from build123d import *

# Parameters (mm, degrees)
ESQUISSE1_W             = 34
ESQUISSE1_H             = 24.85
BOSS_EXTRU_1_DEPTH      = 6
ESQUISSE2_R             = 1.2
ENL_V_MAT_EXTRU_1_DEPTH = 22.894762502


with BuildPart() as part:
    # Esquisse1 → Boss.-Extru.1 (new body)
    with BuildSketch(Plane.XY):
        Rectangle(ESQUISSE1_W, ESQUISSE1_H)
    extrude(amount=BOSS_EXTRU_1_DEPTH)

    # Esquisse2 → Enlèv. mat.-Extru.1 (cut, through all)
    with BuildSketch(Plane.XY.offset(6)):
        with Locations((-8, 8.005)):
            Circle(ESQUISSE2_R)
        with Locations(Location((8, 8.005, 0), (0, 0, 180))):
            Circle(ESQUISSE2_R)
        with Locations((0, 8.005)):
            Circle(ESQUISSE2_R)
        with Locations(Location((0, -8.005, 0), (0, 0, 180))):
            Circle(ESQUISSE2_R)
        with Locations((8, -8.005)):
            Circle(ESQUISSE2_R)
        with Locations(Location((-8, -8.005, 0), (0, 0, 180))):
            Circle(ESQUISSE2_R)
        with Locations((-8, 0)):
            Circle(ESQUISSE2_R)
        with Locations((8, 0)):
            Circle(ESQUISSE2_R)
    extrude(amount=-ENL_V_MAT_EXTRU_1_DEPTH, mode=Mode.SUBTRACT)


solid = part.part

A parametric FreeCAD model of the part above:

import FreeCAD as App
import Part
import Sketcher
from FreeCAD import Vector
Q = App.Units.Quantity


def add_polygon(sketch, points):
    """Adds a closed chain of lines whose ends are joined by coincident constraints."""
    first, n = sketch.GeometryCount, len(points)
    for a, b in zip(points, points[1:] + points[:1]):
        sketch.addGeometry(Part.LineSegment(App.Vector(*a, 0), App.Vector(*b, 0)), False)
    for i in range(n):
        sketch.addConstraint(Sketcher.Constraint("Coincident", first + i, 2, first + (i + 1) % n, 1))

doc = App.newDocument("Part")
body = doc.addObject("PartDesign::Body", "Body")

# Sketch on XY plane
sketch1 = doc.addObject("Sketcher::SketchObject", "Sketch")
body.addObject(sketch1)
sketch1.AttachmentSupport = (doc.XY_Plane, [""])
sketch1.MapMode = "FlatFace"
add_polygon(sketch1, [(-17, 12), (-17, -12), (17, -12), (17, 12)])  # lines 0-3
sketch1.addConstraint(Sketcher.Constraint("Vertical", 0))
sketch1.addConstraint(Sketcher.Constraint("Horizontal", 1))
sketch1.addConstraint(Sketcher.Constraint("Vertical", 2))
sketch1.addConstraint(Sketcher.Constraint("Horizontal", 3))
sketch1.addConstraint(Sketcher.Constraint("Symmetric", 0, 2, 2, 2, -1, 1))
sketch1.addConstraint(Sketcher.Constraint("DistanceX", 1, 1, 1, 2, Q("34 mm")))
sketch1.addConstraint(Sketcher.Constraint("DistanceY", 0, 2, 0, 1, Q("24.85 mm")))
pad1 = doc.addObject("PartDesign::Pad", "Pad")
body.addObject(pad1)
pad1.Profile = sketch1
pad1.Length = 6

# Sketch on XY plane
sketch2 = doc.addObject("Sketcher::SketchObject", "Sketch001")
body.addObject(sketch2)
sketch2.AttachmentSupport = (doc.XY_Plane, [""])
sketch2.MapMode = "FlatFace"
sketch2.AttachmentOffset = App.Placement(Vector(0, 0, 6), App.Rotation())
sketch2.addGeometry(Part.Circle(Vector(-8, 8, 0), Vector(0, 0, 1), 1.2), False)
sketch2.addGeometry(Part.Circle(Vector(8, 8, 0), Vector(0, 0, 1), 1.2), False)
sketch2.addGeometry(Part.Circle(Vector(0, 8, 0), Vector(0, 0, 1), 1.2), False)
sketch2.addGeometry(Part.Circle(Vector(0, -8, 0), Vector(0, 0, 1), 1.2), False)
sketch2.addGeometry(Part.Circle(Vector(8, -8, 0), Vector(0, 0, 1), 1.2), False)
sketch2.addGeometry(Part.Circle(Vector(-8, -8, 0), Vector(0, 0, 1), 1.2), False)
sketch2.addGeometry(Part.Circle(Vector(-8, 0, 0), Vector(0, 0, 1), 1.2), False)
sketch2.addGeometry(Part.Circle(Vector(8, 0, 0), Vector(0, 0, 1), 1.2), False)
sketch2.addConstraint(Sketcher.Constraint("Equal", 0, 1))
sketch2.addConstraint(Sketcher.Constraint("Equal", 1, 2))
sketch2.addConstraint(Sketcher.Constraint("Equal", 2, 3))
sketch2.addConstraint(Sketcher.Constraint("Equal", 3, 4))
sketch2.addConstraint(Sketcher.Constraint("Equal", 4, 5))
sketch2.addConstraint(Sketcher.Constraint("Equal", 5, 6))
sketch2.addConstraint(Sketcher.Constraint("Equal", 6, 7))
sketch2.addConstraint(Sketcher.Constraint("Symmetric", 2, 3, 3, 3, -1, 1))
sketch2.addConstraint(Sketcher.Constraint("Symmetric", 0, 3, 4, 3, -1, 1))
sketch2.addConstraint(Sketcher.Constraint("Symmetric", 1, 3, 5, 3, -1, 1))
sketch2.addConstraint(Sketcher.Constraint("Symmetric", 6, 3, 7, 3, -1, 1))
sketch2.addConstraint(Sketcher.Constraint("Symmetric", 0, 3, 1, 3, -2))
sketch2.addConstraint(Sketcher.Constraint("PointOnObject", 2, 3, -2))
sketch2.addConstraint(Sketcher.Constraint("PointOnObject", 6, 3, -1))
sketch2.addConstraint(Sketcher.Constraint("Horizontal", 1, 3, 2, 3))
sketch2.addConstraint(Sketcher.Constraint("Vertical", 5, 3, 6, 3))
sketch2.addConstraint(Sketcher.Constraint("Diameter", 0, Q("2.4 mm")))
sketch2.addConstraint(Sketcher.Constraint("DistanceX", 0, 3, -1, 1, Q("8 mm")))
sketch2.addConstraint(Sketcher.Constraint("DistanceY", 3, 3, 2, 3, Q("16.01 mm")))
pocket1 = doc.addObject("PartDesign::Pocket", "Pocket")
body.addObject(pocket1)
pocket1.Profile = sketch2
pocket1.Type = "ThroughAll"

doc.recompute()
